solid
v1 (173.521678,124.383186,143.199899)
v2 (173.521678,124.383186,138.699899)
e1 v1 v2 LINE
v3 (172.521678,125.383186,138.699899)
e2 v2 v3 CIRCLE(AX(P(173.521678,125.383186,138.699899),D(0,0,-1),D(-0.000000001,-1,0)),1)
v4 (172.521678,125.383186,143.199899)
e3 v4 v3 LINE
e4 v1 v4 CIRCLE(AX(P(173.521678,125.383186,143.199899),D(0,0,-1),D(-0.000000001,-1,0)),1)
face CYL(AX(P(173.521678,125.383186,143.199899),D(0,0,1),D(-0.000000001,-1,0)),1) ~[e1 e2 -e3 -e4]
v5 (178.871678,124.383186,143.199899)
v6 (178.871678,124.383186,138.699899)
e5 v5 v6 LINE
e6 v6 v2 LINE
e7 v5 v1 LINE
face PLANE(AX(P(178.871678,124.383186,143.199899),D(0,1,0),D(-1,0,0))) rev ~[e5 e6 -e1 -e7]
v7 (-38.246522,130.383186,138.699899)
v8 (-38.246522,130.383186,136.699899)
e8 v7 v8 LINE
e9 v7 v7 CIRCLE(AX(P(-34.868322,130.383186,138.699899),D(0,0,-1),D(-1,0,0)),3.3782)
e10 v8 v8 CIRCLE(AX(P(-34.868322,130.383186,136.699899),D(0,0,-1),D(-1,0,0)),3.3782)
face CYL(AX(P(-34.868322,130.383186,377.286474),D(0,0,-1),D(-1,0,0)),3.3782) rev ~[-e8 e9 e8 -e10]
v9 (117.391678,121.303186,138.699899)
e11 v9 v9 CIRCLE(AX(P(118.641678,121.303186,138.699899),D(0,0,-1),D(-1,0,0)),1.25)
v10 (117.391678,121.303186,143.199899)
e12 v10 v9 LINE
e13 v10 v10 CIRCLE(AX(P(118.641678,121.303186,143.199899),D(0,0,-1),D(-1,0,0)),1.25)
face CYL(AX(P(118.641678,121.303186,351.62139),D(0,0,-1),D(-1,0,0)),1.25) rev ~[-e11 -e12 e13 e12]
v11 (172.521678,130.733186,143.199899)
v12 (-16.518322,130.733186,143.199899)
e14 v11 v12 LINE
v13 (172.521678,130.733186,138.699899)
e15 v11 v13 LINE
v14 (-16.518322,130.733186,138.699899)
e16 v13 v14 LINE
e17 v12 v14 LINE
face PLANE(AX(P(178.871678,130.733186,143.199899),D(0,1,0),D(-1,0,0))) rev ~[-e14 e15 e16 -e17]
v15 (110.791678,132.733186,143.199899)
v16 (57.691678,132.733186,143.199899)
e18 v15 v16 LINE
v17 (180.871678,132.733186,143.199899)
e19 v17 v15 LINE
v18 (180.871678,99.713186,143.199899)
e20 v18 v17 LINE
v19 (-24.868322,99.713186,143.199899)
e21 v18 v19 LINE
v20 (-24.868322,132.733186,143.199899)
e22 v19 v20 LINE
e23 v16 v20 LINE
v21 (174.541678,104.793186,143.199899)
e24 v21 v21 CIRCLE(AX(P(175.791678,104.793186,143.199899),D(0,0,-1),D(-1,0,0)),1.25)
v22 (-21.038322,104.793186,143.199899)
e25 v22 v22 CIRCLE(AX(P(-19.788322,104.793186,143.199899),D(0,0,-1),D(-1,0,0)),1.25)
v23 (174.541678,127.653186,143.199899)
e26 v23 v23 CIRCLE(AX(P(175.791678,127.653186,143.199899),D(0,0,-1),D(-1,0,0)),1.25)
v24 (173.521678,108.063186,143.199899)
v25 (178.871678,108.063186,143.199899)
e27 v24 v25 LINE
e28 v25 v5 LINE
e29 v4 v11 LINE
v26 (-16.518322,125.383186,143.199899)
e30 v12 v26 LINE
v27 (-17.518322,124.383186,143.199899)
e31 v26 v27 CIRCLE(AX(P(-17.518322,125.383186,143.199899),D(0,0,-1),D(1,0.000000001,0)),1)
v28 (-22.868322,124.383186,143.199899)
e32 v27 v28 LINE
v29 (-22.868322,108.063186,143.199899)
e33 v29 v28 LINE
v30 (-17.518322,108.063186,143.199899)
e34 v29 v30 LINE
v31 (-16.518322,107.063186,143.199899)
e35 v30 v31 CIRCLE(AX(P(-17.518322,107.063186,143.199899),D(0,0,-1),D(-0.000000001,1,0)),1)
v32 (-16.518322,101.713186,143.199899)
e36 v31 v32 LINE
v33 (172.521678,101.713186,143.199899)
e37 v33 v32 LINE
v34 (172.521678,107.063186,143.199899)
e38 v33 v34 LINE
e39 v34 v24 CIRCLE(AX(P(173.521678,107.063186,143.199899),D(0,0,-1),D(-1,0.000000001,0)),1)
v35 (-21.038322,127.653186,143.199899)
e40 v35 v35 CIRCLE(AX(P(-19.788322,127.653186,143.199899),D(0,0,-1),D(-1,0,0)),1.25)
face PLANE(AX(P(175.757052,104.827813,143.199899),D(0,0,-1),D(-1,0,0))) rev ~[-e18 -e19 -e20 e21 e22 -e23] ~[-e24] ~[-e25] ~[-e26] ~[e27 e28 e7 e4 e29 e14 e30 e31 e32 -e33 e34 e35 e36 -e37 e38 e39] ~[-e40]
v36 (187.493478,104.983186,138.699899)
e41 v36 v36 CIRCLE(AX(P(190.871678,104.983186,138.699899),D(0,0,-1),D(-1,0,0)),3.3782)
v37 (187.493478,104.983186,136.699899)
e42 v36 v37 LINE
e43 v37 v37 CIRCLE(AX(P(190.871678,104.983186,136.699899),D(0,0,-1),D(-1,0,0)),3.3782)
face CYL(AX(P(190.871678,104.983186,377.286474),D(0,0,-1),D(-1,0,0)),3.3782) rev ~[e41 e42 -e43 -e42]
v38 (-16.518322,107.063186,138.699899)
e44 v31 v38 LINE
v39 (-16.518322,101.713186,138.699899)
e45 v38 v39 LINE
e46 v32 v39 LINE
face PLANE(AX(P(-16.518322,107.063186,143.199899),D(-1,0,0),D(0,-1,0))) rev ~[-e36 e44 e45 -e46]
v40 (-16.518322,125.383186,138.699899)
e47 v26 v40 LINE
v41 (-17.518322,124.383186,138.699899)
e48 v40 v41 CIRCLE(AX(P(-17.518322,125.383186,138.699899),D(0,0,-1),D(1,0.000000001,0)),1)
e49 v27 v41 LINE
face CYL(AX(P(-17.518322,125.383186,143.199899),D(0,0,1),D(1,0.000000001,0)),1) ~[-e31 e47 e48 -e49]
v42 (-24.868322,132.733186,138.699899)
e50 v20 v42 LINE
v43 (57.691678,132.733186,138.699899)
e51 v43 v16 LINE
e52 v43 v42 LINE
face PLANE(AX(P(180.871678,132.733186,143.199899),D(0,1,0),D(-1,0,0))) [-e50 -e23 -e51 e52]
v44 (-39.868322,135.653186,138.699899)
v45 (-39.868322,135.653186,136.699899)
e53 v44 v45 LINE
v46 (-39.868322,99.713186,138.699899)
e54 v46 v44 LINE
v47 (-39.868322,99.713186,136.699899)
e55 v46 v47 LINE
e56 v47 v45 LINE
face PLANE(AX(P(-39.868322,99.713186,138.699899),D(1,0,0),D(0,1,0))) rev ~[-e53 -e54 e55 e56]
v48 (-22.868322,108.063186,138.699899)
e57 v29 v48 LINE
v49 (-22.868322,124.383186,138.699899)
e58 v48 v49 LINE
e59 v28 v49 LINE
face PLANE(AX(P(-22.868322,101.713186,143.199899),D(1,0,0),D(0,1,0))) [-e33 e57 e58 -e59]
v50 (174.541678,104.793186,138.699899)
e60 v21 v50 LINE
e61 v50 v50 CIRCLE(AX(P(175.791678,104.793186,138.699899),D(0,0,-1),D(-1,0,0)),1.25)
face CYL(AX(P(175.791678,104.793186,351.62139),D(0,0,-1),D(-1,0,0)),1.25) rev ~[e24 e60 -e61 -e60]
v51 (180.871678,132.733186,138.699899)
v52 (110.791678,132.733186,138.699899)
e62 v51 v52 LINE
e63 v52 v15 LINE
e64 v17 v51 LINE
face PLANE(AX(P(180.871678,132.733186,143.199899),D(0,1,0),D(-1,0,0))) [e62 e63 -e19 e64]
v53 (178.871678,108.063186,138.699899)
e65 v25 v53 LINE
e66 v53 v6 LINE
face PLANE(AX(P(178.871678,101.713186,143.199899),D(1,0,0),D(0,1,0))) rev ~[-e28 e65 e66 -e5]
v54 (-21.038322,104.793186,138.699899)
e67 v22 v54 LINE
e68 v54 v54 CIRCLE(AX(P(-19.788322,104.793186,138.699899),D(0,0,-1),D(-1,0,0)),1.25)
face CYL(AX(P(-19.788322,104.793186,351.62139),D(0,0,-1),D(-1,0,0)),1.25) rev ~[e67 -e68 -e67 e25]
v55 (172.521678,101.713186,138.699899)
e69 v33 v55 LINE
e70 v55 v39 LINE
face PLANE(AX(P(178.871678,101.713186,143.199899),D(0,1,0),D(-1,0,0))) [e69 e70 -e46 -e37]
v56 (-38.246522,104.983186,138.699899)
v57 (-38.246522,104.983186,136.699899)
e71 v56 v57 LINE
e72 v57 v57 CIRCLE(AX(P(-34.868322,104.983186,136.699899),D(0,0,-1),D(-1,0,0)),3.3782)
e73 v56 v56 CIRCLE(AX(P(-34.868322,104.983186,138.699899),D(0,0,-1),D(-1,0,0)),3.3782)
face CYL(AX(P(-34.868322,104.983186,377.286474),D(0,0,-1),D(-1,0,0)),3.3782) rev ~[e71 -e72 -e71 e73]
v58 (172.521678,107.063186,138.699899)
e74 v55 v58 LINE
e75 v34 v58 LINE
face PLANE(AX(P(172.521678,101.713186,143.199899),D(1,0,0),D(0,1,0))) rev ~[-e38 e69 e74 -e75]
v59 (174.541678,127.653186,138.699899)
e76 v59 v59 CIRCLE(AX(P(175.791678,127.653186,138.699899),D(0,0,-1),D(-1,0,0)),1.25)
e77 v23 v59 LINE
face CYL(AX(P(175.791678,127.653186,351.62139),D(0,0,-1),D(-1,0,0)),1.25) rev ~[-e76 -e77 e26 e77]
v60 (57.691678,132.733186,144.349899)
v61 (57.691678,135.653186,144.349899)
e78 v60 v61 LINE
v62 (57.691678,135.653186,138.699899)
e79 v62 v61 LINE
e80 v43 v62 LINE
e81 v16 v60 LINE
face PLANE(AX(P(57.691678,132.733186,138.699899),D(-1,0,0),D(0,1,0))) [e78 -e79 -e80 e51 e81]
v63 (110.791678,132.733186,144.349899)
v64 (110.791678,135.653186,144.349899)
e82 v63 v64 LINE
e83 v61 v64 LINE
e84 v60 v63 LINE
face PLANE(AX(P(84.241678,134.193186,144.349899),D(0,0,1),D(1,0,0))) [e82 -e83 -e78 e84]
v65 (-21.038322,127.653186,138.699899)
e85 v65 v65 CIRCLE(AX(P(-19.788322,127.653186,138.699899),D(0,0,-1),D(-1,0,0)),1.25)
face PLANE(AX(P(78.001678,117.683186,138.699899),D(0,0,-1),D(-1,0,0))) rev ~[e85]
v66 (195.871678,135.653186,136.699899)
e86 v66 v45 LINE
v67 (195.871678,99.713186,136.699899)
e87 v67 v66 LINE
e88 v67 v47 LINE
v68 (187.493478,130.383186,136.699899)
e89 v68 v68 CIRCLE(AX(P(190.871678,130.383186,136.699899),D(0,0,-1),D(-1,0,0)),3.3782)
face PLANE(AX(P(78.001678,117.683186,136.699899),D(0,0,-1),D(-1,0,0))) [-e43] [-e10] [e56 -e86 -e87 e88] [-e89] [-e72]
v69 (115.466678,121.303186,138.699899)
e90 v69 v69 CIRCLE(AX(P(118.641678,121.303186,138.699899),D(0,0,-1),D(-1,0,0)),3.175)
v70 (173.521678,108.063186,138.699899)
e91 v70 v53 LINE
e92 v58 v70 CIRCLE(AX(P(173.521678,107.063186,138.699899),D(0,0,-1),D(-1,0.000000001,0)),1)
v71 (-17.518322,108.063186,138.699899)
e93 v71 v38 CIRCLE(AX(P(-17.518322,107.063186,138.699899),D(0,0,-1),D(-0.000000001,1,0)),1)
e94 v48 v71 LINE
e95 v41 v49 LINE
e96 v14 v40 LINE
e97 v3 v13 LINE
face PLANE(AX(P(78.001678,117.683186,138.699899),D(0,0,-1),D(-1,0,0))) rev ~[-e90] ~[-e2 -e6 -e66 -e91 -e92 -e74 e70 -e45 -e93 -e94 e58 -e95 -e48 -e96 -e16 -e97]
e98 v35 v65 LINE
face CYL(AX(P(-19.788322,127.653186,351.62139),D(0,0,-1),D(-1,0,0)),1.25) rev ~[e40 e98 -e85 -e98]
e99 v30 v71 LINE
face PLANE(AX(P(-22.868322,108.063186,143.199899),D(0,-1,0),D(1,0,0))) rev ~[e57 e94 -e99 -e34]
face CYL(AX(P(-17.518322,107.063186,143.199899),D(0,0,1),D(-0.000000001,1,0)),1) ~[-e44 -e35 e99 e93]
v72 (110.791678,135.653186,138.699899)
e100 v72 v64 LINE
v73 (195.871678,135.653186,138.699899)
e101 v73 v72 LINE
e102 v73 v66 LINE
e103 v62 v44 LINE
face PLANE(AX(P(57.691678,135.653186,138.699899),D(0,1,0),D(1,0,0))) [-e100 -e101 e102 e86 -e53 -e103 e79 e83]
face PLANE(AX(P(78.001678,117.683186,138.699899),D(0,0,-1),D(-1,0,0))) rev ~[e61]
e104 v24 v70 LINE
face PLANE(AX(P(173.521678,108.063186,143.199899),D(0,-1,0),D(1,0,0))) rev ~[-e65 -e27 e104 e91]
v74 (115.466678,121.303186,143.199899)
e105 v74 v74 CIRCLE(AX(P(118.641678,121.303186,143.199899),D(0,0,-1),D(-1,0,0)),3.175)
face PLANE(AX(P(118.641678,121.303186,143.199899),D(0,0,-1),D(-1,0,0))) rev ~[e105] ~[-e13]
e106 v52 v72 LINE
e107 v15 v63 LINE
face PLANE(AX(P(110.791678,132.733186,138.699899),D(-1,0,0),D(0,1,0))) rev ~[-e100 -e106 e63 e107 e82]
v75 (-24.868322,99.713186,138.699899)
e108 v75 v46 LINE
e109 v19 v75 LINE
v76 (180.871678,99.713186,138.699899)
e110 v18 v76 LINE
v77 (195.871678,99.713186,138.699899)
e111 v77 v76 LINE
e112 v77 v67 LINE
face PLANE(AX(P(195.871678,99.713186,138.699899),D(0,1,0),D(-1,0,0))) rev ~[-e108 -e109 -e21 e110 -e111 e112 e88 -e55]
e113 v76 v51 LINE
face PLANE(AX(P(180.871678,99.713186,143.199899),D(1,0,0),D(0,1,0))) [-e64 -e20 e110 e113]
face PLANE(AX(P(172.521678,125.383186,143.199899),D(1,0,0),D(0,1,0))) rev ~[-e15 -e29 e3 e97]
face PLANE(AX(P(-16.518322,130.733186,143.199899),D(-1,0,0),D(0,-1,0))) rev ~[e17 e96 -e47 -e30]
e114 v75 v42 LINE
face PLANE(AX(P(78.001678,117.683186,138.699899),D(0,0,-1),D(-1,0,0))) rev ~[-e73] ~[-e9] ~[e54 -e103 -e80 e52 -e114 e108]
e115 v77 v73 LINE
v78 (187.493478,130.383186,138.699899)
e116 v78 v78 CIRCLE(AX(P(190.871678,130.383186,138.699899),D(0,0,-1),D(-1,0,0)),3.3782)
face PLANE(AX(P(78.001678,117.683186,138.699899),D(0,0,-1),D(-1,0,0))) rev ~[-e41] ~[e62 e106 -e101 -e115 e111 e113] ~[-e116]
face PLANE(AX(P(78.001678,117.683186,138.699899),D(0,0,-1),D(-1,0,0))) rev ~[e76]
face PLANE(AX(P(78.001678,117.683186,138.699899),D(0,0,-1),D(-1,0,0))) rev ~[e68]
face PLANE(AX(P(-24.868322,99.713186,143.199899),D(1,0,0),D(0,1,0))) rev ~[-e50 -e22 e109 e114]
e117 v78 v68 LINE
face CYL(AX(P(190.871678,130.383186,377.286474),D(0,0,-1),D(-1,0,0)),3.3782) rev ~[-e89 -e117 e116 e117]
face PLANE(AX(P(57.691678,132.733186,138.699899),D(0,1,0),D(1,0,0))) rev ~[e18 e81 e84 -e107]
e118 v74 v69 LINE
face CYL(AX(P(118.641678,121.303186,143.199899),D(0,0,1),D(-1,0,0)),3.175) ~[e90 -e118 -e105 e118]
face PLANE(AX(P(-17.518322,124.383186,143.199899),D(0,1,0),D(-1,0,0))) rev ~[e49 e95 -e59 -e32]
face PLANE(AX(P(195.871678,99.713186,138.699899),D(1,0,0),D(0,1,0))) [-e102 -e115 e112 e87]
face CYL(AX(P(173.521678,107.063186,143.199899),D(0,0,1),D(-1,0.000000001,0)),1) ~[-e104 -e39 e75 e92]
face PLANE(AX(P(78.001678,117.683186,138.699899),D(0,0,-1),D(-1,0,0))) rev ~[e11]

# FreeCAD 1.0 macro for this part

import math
import FreeCAD as App
import Part
import Sketcher
Q = App.Units.Quantity


def add_polygon(sketch, points):
    """Adds a closed chain of lines whose ends are joined by coincident constraints."""
    first, n = sketch.GeometryCount, len(points)
    for a, b in zip(points, points[1:] + points[:1]):
        sketch.addGeometry(Part.LineSegment(App.Vector(*a, 0), App.Vector(*b, 0)), False)
    for i in range(n):
        sketch.addConstraint(Sketcher.Constraint("Coincident", first + i, 2, first + (i + 1) % n, 1))

doc = App.newDocument("Part")
body = doc.addObject("PartDesign::Body", "Body")
body.AllowCompound = True

# Sketch on XY plane
sketch1 = body.newObject("Sketcher::SketchObject", "Sketch")
sketch1.AttachmentSupport = (doc.getObject("XY_Plane"), [""])
sketch1.MapMode = "FlatFace"
sketch1.AttachmentOffset = App.Placement(App.Vector(0, 0, 143.199899), App.Rotation())
add_polygon(sketch1, [(180.9, 132.7), (180.9, 99.7), (-24.9, 99.7), (-24.9, 132.7)])  # lines 0-3
sketch1.addGeometry(Part.LineSegment(App.Vector(-16.5, 101.7, 0), App.Vector(172.5, 101.7, 0)), False)  # 4
sketch1.addGeometry(Part.LineSegment(App.Vector(172.5, 101.7, 0), App.Vector(172.5, 107.1, 0)), False)  # 5
sketch1.addGeometry(Part.ArcOfCircle(Part.Circle(App.Vector(173.5, 107.1, 0), App.Vector(0, 0, 1), 1), math.radians(90), math.radians(180)), False)  # 6
sketch1.addGeometry(Part.LineSegment(App.Vector(173.5, 108.1, 0), App.Vector(178.9, 108.1, 0)), False)  # 7
sketch1.addGeometry(Part.LineSegment(App.Vector(178.9, 108.1, 0), App.Vector(178.9, 124.4, 0)), False)  # 8
sketch1.addGeometry(Part.LineSegment(App.Vector(178.9, 124.4, 0), App.Vector(173.5, 124.4, 0)), False)  # 9
sketch1.addGeometry(Part.ArcOfCircle(Part.Circle(App.Vector(173.5, 125.4, 0), App.Vector(0, 0, 1), 1), math.radians(-180), math.radians(-90)), False)  # 10
sketch1.addGeometry(Part.LineSegment(App.Vector(172.5, 125.4, 0), App.Vector(172.5, 130.7, 0)), False)  # 11
sketch1.addGeometry(Part.LineSegment(App.Vector(172.5, 130.7, 0), App.Vector(-16.5, 130.7, 0)), False)  # 12
sketch1.addGeometry(Part.LineSegment(App.Vector(-16.5, 130.7, 0), App.Vector(-16.5, 125.4, 0)), False)  # 13
sketch1.addGeometry(Part.ArcOfCircle(Part.Circle(App.Vector(-17.5, 125.4, 0), App.Vector(0, 0, 1), 1), math.radians(-90), math.radians(0)), False)  # 14
sketch1.addGeometry(Part.LineSegment(App.Vector(-17.5, 124.4, 0), App.Vector(-22.9, 124.4, 0)), False)  # 15
sketch1.addGeometry(Part.LineSegment(App.Vector(-22.9, 124.4, 0), App.Vector(-22.9, 108.1, 0)), False)  # 16
sketch1.addGeometry(Part.LineSegment(App.Vector(-22.9, 108.1, 0), App.Vector(-17.5, 108.1, 0)), False)  # 17
sketch1.addGeometry(Part.ArcOfCircle(Part.Circle(App.Vector(-17.5, 107.1, 0), App.Vector(0, 0, 1), 1), math.radians(0), math.radians(90)), False)  # 18
sketch1.addGeometry(Part.LineSegment(App.Vector(-16.5, 107.1, 0), App.Vector(-16.5, 101.7, 0)), False)  # 19
sketch1.addGeometry(Part.Circle(App.Vector(118.6, 121.3, 0), App.Vector(0, 0, 1), 3.2), False)  # 20
sketch1.addConstraint([
    Sketcher.Constraint("Coincident", 4, 2, 5, 1),
    Sketcher.Constraint("Tangent", 5, 2, 6, 2),
    Sketcher.Constraint("Tangent", 6, 1, 7, 1),
    Sketcher.Constraint("Coincident", 7, 2, 8, 1),
    Sketcher.Constraint("Coincident", 8, 2, 9, 1),
    Sketcher.Constraint("Tangent", 9, 2, 10, 2),
    Sketcher.Constraint("Tangent", 10, 1, 11, 1),
    Sketcher.Constraint("Coincident", 11, 2, 12, 1),
    Sketcher.Constraint("Coincident", 12, 2, 13, 1),
    Sketcher.Constraint("Tangent", 13, 2, 14, 2),
    Sketcher.Constraint("Tangent", 14, 1, 15, 1),
    Sketcher.Constraint("Coincident", 15, 2, 16, 1),
    Sketcher.Constraint("Coincident", 16, 2, 17, 1),
    Sketcher.Constraint("Tangent", 17, 2, 18, 2),
    Sketcher.Constraint("Tangent", 18, 1, 19, 1),
    Sketcher.Constraint("Coincident", 19, 2, 4, 1),
    Sketcher.Constraint("Vertical", 0),
    Sketcher.Constraint("Horizontal", 1),
    Sketcher.Constraint("Vertical", 2),
    Sketcher.Constraint("Horizontal", 3),
    Sketcher.Constraint("Horizontal", 4),
    Sketcher.Constraint("Vertical", 5),
    Sketcher.Constraint("Horizontal", 7),
    Sketcher.Constraint("Vertical", 8),
    Sketcher.Constraint("Horizontal", 9),
    Sketcher.Constraint("Vertical", 11),
    Sketcher.Constraint("Horizontal", 12),
    Sketcher.Constraint("Vertical", 13),
    Sketcher.Constraint("Horizontal", 15),
    Sketcher.Constraint("Vertical", 16),
    Sketcher.Constraint("Horizontal", 17),
    Sketcher.Constraint("Vertical", 19),
    Sketcher.Constraint("Equal", 6, 10),
    Sketcher.Constraint("Equal", 10, 14),
    Sketcher.Constraint("Equal", 14, 18),
    Sketcher.Constraint("Horizontal", 10, 3, 14, 3),
    Sketcher.Constraint("Horizontal", 6, 3, 18, 3),
    Sketcher.Constraint("Vertical", 6, 3, 10, 3),
    Sketcher.Constraint("Vertical", 14, 3, 18, 3),
    Sketcher.Constraint("Equal", 9, 15),
    Sketcher.Constraint("Equal", 17, 5),
    Sketcher.Constraint("Equal", 5, 11),
    Sketcher.Constraint("Radius", 6, Q("1 mm")),
    Sketcher.Constraint("Diameter", 20, Q("6.35 mm")),
    Sketcher.Constraint("DistanceY", 0, 2, 4, 2, Q("2 mm")),
    Sketcher.Constraint("DistanceX", 7, 2, 0, 2, Q("2 mm")),
    Sketcher.Constraint("DistanceY", 11, 2, 3, 2, Q("2 mm")),
    Sketcher.Constraint("DistanceX", 2, 2, 15, 2, Q("2 mm")),
    Sketcher.Constraint("DistanceX", 1, 2, 1, 1, Q("205.74 mm")),
    Sketcher.Constraint("DistanceX", 4, 1, 4, 2, Q("189.04 mm")),
    Sketcher.Constraint("DistanceY", 0, 2, 0, 1, Q("33.02 mm")),
    Sketcher.Constraint("DistanceX", 20, 3, 10, 3, Q("54.88 mm")),
    Sketcher.Constraint("DistanceY", 20, 3, 10, 3, Q("4.08 mm")),
    Sketcher.Constraint("DistanceX", -1, 1, 6, 3, Q("173.521678 mm")),
    Sketcher.Constraint("DistanceY", -1, 1, 6, 3, Q("107.063186 mm")),
])
pad1 = body.newObject("PartDesign::Pad", "Pad")
pad1.Profile = sketch1
pad1.Length = 4.5
pad1.Reversed = True

# Sketch on XY plane
sketch2 = body.newObject("Sketcher::SketchObject", "Sketch001")
sketch2.AttachmentSupport = (doc.getObject("XY_Plane"), [""])
sketch2.MapMode = "FlatFace"
sketch2.AttachmentOffset = App.Placement(App.Vector(0, 0, 143.199899), App.Rotation())
sketch2.addGeometry([
    Part.Circle(App.Vector(-19.8, 127.7, 0), App.Vector(0, 0, 1), 1.2),  # 0
    Part.Circle(App.Vector(-19.8, 104.8, 0), App.Vector(0, 0, 1), 1.2),  # 1
    Part.Circle(App.Vector(118.6, 121.3, 0), App.Vector(0, 0, 1), 1.2),  # 2
    Part.Circle(App.Vector(175.8, 127.7, 0), App.Vector(0, 0, 1), 1.2),  # 3
    Part.Circle(App.Vector(175.8, 104.8, 0), App.Vector(0, 0, 1), 1.2),  # 4
], False)
sketch2.addConstraint([
    Sketcher.Constraint("Equal", 0, 1),
    Sketcher.Constraint("Equal", 1, 2),
    Sketcher.Constraint("Equal", 2, 3),
    Sketcher.Constraint("Equal", 3, 4),
    Sketcher.Constraint("Horizontal", 0, 3, 3, 3),
    Sketcher.Constraint("Horizontal", 1, 3, 4, 3),
    Sketcher.Constraint("Vertical", 0, 3, 1, 3),
    Sketcher.Constraint("Vertical", 3, 3, 4, 3),
    Sketcher.Constraint("Diameter", 0, Q("2.5 mm")),
    Sketcher.Constraint("DistanceY", 1, 3, 0, 3, Q("22.86 mm")),
    Sketcher.Constraint("DistanceX", 0, 3, 2, 3, Q("138.43 mm")),
    Sketcher.Constraint("DistanceY", 2, 3, 0, 3, Q("6.35 mm")),
    Sketcher.Constraint("DistanceX", 2, 3, 3, 3, Q("57.15 mm")),
    Sketcher.Constraint("DistanceX", 0, 3, -1, 1, Q("19.788322 mm")),
    Sketcher.Constraint("DistanceY", -1, 1, 0, 3, Q("127.653186 mm")),
])
doc.recompute()
hole = body.newObject("PartDesign::Hole", "Hole")
hole.Profile = sketch2
hole.ThreadType = "None"
hole.Diameter = 2.5
hole.DepthType = "ThroughAll"

# Sketch on XY plane
sketch3 = body.newObject("Sketcher::SketchObject", "Sketch002")
sketch3.AttachmentSupport = (doc.getObject("XY_Plane"), [""])
sketch3.MapMode = "FlatFace"
sketch3.AttachmentOffset = App.Placement(App.Vector(0, 0, 138.699899), App.Rotation())
add_polygon(sketch3, [(196, 136), (196, 100), (-40, 100), (-40, 136)])  # lines 0-3
sketch3.addConstraint([
    Sketcher.Constraint("Vertical", 0),
    Sketcher.Constraint("Horizontal", 1),
    Sketcher.Constraint("Vertical", 2),
    Sketcher.Constraint("Horizontal", 3),
    Sketcher.Constraint("DistanceX", 1, 2, 1, 1, Q("235.74 mm")),
    Sketcher.Constraint("DistanceY", 0, 2, 0, 1, Q("35.94 mm")),
    Sketcher.Constraint("DistanceX", -1, 1, 0, 2, Q("195.871678 mm")),
    Sketcher.Constraint("DistanceY", -1, 1, 0, 2, Q("99.713186 mm")),
])
pad2 = body.newObject("PartDesign::Pad", "Pad001")
pad2.Profile = sketch3
pad2.Length = 2
pad2.Reversed = True

# Sketch on XY plane
sketch4 = body.newObject("Sketcher::SketchObject", "Sketch003")
sketch4.AttachmentSupport = (doc.getObject("XY_Plane"), [""])
sketch4.MapMode = "FlatFace"
sketch4.AttachmentOffset = App.Placement(App.Vector(0, 0, 138.699899), App.Rotation())
add_polygon(sketch4, [(57.7, 135.7), (57.7, 132.7), (110.8, 132.7), (110.8, 135.7)])  # lines 0-3
sketch4.addConstraint([
    Sketcher.Constraint("Vertical", 0),
    Sketcher.Constraint("Horizontal", 1),
    Sketcher.Constraint("Vertical", 2),
    Sketcher.Constraint("Horizontal", 3),
    Sketcher.Constraint("DistanceX", 1, 1, 1, 2, Q("53.1 mm")),
    Sketcher.Constraint("DistanceY", 0, 2, 0, 1, Q("2.92 mm")),
    Sketcher.Constraint("DistanceX", -1, 1, 0, 2, Q("57.691678 mm")),
    Sketcher.Constraint("DistanceY", -1, 1, 0, 2, Q("132.733186 mm")),
])
pad3 = body.newObject("PartDesign::Pad", "Pad002")
pad3.Profile = sketch4
pad3.Length = 5.65

# Sketch on XY plane
sketch5 = body.newObject("Sketcher::SketchObject", "Sketch004")
sketch5.AttachmentSupport = (doc.getObject("XY_Plane"), [""])
sketch5.MapMode = "FlatFace"
sketch5.AttachmentOffset = App.Placement(App.Vector(0, 0, 138.699899), App.Rotation())
sketch5.addGeometry([
    Part.Circle(App.Vector(190.9, 105, 0), App.Vector(0, 0, 1), 3.4),
    Part.Circle(App.Vector(190.9, 130.4, 0), App.Vector(0, 0, 1), 3.4),
    Part.Circle(App.Vector(-34.9, 105, 0), App.Vector(0, 0, 1), 3.4),
    Part.Circle(App.Vector(-34.9, 130.4, 0), App.Vector(0, 0, 1), 3.4),
], False)
sketch5.addConstraint([
    Sketcher.Constraint("Equal", 0, 1),
    Sketcher.Constraint("Equal", 1, 2),
    Sketcher.Constraint("Equal", 2, 3),
    Sketcher.Constraint("Horizontal", 0, 3, 2, 3),
    Sketcher.Constraint("Horizontal", 1, 3, 3, 3),
    Sketcher.Constraint("Vertical", 0, 3, 1, 3),
    Sketcher.Constraint("Vertical", 2, 3, 3, 3),
    Sketcher.Constraint("Diameter", 0, Q("6.7564 mm")),
    Sketcher.Constraint("DistanceY", 0, 3, 1, 3, Q("25.4 mm")),
    Sketcher.Constraint("DistanceX", 2, 3, 0, 3, Q("225.74 mm")),
    Sketcher.Constraint("DistanceX", -1, 1, 0, 3, Q("190.871678 mm")),
    Sketcher.Constraint("DistanceY", -1, 1, 0, 3, Q("104.983186 mm")),
])
doc.recompute()
hole2 = body.newObject("PartDesign::Hole", "Hole001")
hole2.Profile = sketch5
hole2.ThreadType = "None"
hole2.Diameter = 6.7564
hole2.DepthType = "ThroughAll"

doc.recompute()
